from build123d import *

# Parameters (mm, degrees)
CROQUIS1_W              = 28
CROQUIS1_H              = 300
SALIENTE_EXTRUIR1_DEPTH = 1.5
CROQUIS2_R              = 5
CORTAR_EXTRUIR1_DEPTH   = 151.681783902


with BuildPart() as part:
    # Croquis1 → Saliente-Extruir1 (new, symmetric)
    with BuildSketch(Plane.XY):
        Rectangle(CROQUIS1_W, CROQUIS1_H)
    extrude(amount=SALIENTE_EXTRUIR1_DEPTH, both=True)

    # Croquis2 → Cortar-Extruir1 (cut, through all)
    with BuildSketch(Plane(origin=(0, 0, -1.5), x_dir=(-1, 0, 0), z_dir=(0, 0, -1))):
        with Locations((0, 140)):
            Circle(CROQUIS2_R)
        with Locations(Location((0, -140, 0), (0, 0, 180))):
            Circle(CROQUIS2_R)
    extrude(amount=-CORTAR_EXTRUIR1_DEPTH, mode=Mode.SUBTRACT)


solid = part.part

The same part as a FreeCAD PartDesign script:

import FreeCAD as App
import Part
import Sketcher
from FreeCAD import Vector


def add_polygon(sketch, points):
    """Adds a closed chain of lines whose ends are joined by coincident constraints."""
    first, n = sketch.GeometryCount, len(points)
    for a, b in zip(points, points[1:] + points[:1]):
        sketch.addGeometry(Part.LineSegment(App.Vector(*a, 0), App.Vector(*b, 0)), False)
    for i in range(n):
        sketch.addConstraint(Sketcher.Constraint("Coincident", first + i, 2, first + (i + 1) % n, 1))

doc = App.newDocument("Part")
body = doc.addObject("PartDesign::Body", "Body")

# Sketch on XY plane
sketch1 = body.newObject("Sketcher::SketchObject", "Sketch")
sketch1.AttachmentSupport = (doc.getObject("XY_Plane"), [""])
sketch1.MapMode = "FlatFace"
add_polygon(sketch1, [(-14, 150), (-14, -150), (14, -150), (14, 150)])  # lines 0-3
sketch1.addConstraint(Sketcher.Constraint("Vertical", 0))
sketch1.addConstraint(Sketcher.Constraint("Horizontal", 1))
sketch1.addConstraint(Sketcher.Constraint("Vertical", 2))
sketch1.addConstraint(Sketcher.Constraint("Horizontal", 3))
sketch1.addConstraint(Sketcher.Constraint("Symmetric", 0, 2, 2, 2, -1, 1))
sketch1.addConstraint(Sketcher.Constraint("DistanceX", 1, 1, 1, 2, 28.0))
sketch1.addConstraint(Sketcher.Constraint("DistanceY", 0, 2, 0, 1, 300.0))
pad1 = body.newObject("PartDesign::Pad", "Pad")
pad1.Profile = sketch1
pad1.Length = 3
pad1.Midplane = True

# Sketch on XY plane
sketch2 = body.newObject("Sketcher::SketchObject", "Sketch001")
sketch2.AttachmentSupport = (doc.getObject("XY_Plane"), [""])
sketch2.MapMode = "FlatFace"
sketch2.AttachmentOffset = App.Placement(Vector(0, 0, -1.5), App.Rotation())
sketch2.addGeometry(Part.Circle(Vector(0, 140, 0), Vector(0, 0, 1), 5), False)
sketch2.addGeometry(Part.Circle(Vector(0, -140, 0), Vector(0, 0, 1), 5), False)
sketch2.addConstraint(Sketcher.Constraint("Equal", 0, 1))
sketch2.addConstraint(Sketcher.Constraint("Symmetric", 0, 3, 1, 3, -1, 1))
sketch2.addConstraint(Sketcher.Constraint("PointOnObject", 0, 3, -2))
sketch2.addConstraint(Sketcher.Constraint("Diameter", 0, 10.0))
sketch2.addConstraint(Sketcher.Constraint("DistanceY", -1, 1, 0, 3, 140.0))
pocket1 = body.newObject("PartDesign::Pocket", "Pocket")
pocket1.Profile = sketch2
pocket1.Type = "ThroughAll"
pocket1.Reversed = True

doc.recompute()
